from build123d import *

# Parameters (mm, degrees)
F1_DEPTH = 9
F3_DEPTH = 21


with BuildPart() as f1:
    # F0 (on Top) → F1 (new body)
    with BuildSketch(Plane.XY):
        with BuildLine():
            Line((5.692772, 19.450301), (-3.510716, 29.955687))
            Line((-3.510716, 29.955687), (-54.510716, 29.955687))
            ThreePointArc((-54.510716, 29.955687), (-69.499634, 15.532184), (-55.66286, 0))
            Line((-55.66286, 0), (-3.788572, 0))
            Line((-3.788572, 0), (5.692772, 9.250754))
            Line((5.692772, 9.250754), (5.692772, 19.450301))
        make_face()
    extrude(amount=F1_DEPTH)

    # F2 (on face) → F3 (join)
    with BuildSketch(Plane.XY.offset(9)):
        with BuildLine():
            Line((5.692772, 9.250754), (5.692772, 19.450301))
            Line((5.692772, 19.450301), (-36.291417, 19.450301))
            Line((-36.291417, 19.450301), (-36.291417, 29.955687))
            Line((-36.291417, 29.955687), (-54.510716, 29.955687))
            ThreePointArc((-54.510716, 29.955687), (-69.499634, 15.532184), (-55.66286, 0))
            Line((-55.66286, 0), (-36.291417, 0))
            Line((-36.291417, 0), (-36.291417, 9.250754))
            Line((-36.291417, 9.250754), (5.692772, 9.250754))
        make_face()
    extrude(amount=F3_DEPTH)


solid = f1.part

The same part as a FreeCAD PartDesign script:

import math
import FreeCAD as App
import Part
import Sketcher

doc = App.newDocument("Part")
body = doc.addObject("PartDesign::Body", "Body")

# Sketch on XY plane
sketch1 = body.newObject("Sketcher::SketchObject", "Sketch")
sketch1.AttachmentSupport = (doc.getObject("XY_Plane"), [""])
sketch1.MapMode = "FlatFace"
sketch1.addGeometry([
    Part.LineSegment(App.Vector(6, 19, 0), App.Vector(-4, 30, 0)),  # 0
    Part.LineSegment(App.Vector(-4, 30, 0), App.Vector(-55, 30, 0)),  # 1
    Part.ArcOfCircle(Part.Circle(App.Vector(-55, 15, 0), App.Vector(0, 0, 1), 15), math.radians(90), math.radians(266)),  # 2
    Part.LineSegment(App.Vector(-56, 0, 0), App.Vector(-4, 0, 0)),  # 3
    Part.LineSegment(App.Vector(-4, 0, 0), App.Vector(6, 9, 0)),  # 4
    Part.LineSegment(App.Vector(6, 9, 0), App.Vector(6, 19, 0)),  # 5
], False)
sketch1.addConstraint([
    Sketcher.Constraint("Coincident", 0, 2, 1, 1),
    Sketcher.Constraint("Tangent", 1, 2, 2, 1),
    Sketcher.Constraint("Coincident", 2, 2, 3, 1),
    Sketcher.Constraint("Coincident", 3, 2, 4, 1),
    Sketcher.Constraint("Coincident", 4, 2, 5, 1),
    Sketcher.Constraint("Coincident", 5, 2, 0, 1),
    Sketcher.Constraint("Horizontal", 1),
    Sketcher.Constraint("Horizontal", 3),
    Sketcher.Constraint("Vertical", 5),
    Sketcher.Constraint("PointOnObject", 2, 2, -1),
    Sketcher.Constraint("Radius", 2, 15.0),
    Sketcher.Constraint("DistanceX", 1, 2, 1, 1, 51.0),
    Sketcher.Constraint("DistanceY", -1, 1, 5, 2, 19.450301),
    Sketcher.Constraint("Distance", 0, 13.966651),
    Sketcher.Constraint("DistanceX", 3, 1, 3, 2, 51.874288),
    Sketcher.Constraint("DistanceY", 5, 1, 5, 2, 10.199547),
    Sketcher.Constraint("DistanceX", 2, 2, -1, 1, 55.66286),
    Sketcher.Constraint("DistanceX", -1, 1, 4, 2, 5.692772),
])
pad1 = body.newObject("PartDesign::Pad", "Pad")
pad1.Profile = sketch1
pad1.Length = 9

# Sketch on XY plane
sketch2 = body.newObject("Sketcher::SketchObject", "Sketch001")
sketch2.AttachmentSupport = (doc.getObject("XY_Plane"), [""])
sketch2.MapMode = "FlatFace"
sketch2.AttachmentOffset = App.Placement(App.Vector(0, 0, 9), App.Rotation())
sketch2.addGeometry([
    Part.LineSegment(App.Vector(6, 9, 0), App.Vector(6, 19, 0)),  # 0
    Part.LineSegment(App.Vector(6, 19, 0), App.Vector(-36, 19, 0)),  # 1
    Part.LineSegment(App.Vector(-36, 19, 0), App.Vector(-36, 30, 0)),  # 2
    Part.LineSegment(App.Vector(-36, 30, 0), App.Vector(-55, 30, 0)),  # 3
    Part.ArcOfCircle(Part.Circle(App.Vector(-55, 15, 0), App.Vector(0, 0, 1), 15), math.radians(90), math.radians(266)),  # 4
    Part.LineSegment(App.Vector(-56, 0, 0), App.Vector(-36, 0, 0)),  # 5
    Part.LineSegment(App.Vector(-36, 0, 0), App.Vector(-36, 9, 0)),  # 6
    Part.LineSegment(App.Vector(-36, 9, 0), App.Vector(6, 9, 0)),  # 7
], False)
sketch2.addConstraint([
    Sketcher.Constraint("Coincident", 0, 2, 1, 1),
    Sketcher.Constraint("Coincident", 1, 2, 2, 1),
    Sketcher.Constraint("Coincident", 2, 2, 3, 1),
    Sketcher.Constraint("Tangent", 3, 2, 4, 1),
    Sketcher.Constraint("Coincident", 4, 2, 5, 1),
    Sketcher.Constraint("Coincident", 5, 2, 6, 1),
    Sketcher.Constraint("Coincident", 6, 2, 7, 1),
    Sketcher.Constraint("Coincident", 7, 2, 0, 1),
    Sketcher.Constraint("Vertical", 0),
    Sketcher.Constraint("Horizontal", 1),
    Sketcher.Constraint("Vertical", 2),
    Sketcher.Constraint("Horizontal", 3),
    Sketcher.Constraint("Horizontal", 5),
    Sketcher.Constraint("Vertical", 6),
    Sketcher.Constraint("Horizontal", 7),
    Sketcher.Constraint("PointOnObject", 4, 2, -1),
    Sketcher.Constraint("Vertical", 2, 2, 5, 2),
    Sketcher.Constraint("Radius", 4, 15.0),
    Sketcher.Constraint("DistanceX", 3, 2, 3, 1, 18.219299),
    Sketcher.Constraint("DistanceX", 1, 2, 1, 1, 41.984189),
    Sketcher.Constraint("DistanceY", -1, 1, 0, 2, 19.450301),
    Sketcher.Constraint("DistanceX", 5, 1, 5, 2, 19.371443),
    Sketcher.Constraint("DistanceY", 0, 1, 0, 2, 10.199547),
    Sketcher.Constraint("DistanceX", -1, 1, 0, 2, 5.692772),
])
pad2 = body.newObject("PartDesign::Pad", "Pad001")
pad2.Profile = sketch2
pad2.Length = 21

doc.recompute()
